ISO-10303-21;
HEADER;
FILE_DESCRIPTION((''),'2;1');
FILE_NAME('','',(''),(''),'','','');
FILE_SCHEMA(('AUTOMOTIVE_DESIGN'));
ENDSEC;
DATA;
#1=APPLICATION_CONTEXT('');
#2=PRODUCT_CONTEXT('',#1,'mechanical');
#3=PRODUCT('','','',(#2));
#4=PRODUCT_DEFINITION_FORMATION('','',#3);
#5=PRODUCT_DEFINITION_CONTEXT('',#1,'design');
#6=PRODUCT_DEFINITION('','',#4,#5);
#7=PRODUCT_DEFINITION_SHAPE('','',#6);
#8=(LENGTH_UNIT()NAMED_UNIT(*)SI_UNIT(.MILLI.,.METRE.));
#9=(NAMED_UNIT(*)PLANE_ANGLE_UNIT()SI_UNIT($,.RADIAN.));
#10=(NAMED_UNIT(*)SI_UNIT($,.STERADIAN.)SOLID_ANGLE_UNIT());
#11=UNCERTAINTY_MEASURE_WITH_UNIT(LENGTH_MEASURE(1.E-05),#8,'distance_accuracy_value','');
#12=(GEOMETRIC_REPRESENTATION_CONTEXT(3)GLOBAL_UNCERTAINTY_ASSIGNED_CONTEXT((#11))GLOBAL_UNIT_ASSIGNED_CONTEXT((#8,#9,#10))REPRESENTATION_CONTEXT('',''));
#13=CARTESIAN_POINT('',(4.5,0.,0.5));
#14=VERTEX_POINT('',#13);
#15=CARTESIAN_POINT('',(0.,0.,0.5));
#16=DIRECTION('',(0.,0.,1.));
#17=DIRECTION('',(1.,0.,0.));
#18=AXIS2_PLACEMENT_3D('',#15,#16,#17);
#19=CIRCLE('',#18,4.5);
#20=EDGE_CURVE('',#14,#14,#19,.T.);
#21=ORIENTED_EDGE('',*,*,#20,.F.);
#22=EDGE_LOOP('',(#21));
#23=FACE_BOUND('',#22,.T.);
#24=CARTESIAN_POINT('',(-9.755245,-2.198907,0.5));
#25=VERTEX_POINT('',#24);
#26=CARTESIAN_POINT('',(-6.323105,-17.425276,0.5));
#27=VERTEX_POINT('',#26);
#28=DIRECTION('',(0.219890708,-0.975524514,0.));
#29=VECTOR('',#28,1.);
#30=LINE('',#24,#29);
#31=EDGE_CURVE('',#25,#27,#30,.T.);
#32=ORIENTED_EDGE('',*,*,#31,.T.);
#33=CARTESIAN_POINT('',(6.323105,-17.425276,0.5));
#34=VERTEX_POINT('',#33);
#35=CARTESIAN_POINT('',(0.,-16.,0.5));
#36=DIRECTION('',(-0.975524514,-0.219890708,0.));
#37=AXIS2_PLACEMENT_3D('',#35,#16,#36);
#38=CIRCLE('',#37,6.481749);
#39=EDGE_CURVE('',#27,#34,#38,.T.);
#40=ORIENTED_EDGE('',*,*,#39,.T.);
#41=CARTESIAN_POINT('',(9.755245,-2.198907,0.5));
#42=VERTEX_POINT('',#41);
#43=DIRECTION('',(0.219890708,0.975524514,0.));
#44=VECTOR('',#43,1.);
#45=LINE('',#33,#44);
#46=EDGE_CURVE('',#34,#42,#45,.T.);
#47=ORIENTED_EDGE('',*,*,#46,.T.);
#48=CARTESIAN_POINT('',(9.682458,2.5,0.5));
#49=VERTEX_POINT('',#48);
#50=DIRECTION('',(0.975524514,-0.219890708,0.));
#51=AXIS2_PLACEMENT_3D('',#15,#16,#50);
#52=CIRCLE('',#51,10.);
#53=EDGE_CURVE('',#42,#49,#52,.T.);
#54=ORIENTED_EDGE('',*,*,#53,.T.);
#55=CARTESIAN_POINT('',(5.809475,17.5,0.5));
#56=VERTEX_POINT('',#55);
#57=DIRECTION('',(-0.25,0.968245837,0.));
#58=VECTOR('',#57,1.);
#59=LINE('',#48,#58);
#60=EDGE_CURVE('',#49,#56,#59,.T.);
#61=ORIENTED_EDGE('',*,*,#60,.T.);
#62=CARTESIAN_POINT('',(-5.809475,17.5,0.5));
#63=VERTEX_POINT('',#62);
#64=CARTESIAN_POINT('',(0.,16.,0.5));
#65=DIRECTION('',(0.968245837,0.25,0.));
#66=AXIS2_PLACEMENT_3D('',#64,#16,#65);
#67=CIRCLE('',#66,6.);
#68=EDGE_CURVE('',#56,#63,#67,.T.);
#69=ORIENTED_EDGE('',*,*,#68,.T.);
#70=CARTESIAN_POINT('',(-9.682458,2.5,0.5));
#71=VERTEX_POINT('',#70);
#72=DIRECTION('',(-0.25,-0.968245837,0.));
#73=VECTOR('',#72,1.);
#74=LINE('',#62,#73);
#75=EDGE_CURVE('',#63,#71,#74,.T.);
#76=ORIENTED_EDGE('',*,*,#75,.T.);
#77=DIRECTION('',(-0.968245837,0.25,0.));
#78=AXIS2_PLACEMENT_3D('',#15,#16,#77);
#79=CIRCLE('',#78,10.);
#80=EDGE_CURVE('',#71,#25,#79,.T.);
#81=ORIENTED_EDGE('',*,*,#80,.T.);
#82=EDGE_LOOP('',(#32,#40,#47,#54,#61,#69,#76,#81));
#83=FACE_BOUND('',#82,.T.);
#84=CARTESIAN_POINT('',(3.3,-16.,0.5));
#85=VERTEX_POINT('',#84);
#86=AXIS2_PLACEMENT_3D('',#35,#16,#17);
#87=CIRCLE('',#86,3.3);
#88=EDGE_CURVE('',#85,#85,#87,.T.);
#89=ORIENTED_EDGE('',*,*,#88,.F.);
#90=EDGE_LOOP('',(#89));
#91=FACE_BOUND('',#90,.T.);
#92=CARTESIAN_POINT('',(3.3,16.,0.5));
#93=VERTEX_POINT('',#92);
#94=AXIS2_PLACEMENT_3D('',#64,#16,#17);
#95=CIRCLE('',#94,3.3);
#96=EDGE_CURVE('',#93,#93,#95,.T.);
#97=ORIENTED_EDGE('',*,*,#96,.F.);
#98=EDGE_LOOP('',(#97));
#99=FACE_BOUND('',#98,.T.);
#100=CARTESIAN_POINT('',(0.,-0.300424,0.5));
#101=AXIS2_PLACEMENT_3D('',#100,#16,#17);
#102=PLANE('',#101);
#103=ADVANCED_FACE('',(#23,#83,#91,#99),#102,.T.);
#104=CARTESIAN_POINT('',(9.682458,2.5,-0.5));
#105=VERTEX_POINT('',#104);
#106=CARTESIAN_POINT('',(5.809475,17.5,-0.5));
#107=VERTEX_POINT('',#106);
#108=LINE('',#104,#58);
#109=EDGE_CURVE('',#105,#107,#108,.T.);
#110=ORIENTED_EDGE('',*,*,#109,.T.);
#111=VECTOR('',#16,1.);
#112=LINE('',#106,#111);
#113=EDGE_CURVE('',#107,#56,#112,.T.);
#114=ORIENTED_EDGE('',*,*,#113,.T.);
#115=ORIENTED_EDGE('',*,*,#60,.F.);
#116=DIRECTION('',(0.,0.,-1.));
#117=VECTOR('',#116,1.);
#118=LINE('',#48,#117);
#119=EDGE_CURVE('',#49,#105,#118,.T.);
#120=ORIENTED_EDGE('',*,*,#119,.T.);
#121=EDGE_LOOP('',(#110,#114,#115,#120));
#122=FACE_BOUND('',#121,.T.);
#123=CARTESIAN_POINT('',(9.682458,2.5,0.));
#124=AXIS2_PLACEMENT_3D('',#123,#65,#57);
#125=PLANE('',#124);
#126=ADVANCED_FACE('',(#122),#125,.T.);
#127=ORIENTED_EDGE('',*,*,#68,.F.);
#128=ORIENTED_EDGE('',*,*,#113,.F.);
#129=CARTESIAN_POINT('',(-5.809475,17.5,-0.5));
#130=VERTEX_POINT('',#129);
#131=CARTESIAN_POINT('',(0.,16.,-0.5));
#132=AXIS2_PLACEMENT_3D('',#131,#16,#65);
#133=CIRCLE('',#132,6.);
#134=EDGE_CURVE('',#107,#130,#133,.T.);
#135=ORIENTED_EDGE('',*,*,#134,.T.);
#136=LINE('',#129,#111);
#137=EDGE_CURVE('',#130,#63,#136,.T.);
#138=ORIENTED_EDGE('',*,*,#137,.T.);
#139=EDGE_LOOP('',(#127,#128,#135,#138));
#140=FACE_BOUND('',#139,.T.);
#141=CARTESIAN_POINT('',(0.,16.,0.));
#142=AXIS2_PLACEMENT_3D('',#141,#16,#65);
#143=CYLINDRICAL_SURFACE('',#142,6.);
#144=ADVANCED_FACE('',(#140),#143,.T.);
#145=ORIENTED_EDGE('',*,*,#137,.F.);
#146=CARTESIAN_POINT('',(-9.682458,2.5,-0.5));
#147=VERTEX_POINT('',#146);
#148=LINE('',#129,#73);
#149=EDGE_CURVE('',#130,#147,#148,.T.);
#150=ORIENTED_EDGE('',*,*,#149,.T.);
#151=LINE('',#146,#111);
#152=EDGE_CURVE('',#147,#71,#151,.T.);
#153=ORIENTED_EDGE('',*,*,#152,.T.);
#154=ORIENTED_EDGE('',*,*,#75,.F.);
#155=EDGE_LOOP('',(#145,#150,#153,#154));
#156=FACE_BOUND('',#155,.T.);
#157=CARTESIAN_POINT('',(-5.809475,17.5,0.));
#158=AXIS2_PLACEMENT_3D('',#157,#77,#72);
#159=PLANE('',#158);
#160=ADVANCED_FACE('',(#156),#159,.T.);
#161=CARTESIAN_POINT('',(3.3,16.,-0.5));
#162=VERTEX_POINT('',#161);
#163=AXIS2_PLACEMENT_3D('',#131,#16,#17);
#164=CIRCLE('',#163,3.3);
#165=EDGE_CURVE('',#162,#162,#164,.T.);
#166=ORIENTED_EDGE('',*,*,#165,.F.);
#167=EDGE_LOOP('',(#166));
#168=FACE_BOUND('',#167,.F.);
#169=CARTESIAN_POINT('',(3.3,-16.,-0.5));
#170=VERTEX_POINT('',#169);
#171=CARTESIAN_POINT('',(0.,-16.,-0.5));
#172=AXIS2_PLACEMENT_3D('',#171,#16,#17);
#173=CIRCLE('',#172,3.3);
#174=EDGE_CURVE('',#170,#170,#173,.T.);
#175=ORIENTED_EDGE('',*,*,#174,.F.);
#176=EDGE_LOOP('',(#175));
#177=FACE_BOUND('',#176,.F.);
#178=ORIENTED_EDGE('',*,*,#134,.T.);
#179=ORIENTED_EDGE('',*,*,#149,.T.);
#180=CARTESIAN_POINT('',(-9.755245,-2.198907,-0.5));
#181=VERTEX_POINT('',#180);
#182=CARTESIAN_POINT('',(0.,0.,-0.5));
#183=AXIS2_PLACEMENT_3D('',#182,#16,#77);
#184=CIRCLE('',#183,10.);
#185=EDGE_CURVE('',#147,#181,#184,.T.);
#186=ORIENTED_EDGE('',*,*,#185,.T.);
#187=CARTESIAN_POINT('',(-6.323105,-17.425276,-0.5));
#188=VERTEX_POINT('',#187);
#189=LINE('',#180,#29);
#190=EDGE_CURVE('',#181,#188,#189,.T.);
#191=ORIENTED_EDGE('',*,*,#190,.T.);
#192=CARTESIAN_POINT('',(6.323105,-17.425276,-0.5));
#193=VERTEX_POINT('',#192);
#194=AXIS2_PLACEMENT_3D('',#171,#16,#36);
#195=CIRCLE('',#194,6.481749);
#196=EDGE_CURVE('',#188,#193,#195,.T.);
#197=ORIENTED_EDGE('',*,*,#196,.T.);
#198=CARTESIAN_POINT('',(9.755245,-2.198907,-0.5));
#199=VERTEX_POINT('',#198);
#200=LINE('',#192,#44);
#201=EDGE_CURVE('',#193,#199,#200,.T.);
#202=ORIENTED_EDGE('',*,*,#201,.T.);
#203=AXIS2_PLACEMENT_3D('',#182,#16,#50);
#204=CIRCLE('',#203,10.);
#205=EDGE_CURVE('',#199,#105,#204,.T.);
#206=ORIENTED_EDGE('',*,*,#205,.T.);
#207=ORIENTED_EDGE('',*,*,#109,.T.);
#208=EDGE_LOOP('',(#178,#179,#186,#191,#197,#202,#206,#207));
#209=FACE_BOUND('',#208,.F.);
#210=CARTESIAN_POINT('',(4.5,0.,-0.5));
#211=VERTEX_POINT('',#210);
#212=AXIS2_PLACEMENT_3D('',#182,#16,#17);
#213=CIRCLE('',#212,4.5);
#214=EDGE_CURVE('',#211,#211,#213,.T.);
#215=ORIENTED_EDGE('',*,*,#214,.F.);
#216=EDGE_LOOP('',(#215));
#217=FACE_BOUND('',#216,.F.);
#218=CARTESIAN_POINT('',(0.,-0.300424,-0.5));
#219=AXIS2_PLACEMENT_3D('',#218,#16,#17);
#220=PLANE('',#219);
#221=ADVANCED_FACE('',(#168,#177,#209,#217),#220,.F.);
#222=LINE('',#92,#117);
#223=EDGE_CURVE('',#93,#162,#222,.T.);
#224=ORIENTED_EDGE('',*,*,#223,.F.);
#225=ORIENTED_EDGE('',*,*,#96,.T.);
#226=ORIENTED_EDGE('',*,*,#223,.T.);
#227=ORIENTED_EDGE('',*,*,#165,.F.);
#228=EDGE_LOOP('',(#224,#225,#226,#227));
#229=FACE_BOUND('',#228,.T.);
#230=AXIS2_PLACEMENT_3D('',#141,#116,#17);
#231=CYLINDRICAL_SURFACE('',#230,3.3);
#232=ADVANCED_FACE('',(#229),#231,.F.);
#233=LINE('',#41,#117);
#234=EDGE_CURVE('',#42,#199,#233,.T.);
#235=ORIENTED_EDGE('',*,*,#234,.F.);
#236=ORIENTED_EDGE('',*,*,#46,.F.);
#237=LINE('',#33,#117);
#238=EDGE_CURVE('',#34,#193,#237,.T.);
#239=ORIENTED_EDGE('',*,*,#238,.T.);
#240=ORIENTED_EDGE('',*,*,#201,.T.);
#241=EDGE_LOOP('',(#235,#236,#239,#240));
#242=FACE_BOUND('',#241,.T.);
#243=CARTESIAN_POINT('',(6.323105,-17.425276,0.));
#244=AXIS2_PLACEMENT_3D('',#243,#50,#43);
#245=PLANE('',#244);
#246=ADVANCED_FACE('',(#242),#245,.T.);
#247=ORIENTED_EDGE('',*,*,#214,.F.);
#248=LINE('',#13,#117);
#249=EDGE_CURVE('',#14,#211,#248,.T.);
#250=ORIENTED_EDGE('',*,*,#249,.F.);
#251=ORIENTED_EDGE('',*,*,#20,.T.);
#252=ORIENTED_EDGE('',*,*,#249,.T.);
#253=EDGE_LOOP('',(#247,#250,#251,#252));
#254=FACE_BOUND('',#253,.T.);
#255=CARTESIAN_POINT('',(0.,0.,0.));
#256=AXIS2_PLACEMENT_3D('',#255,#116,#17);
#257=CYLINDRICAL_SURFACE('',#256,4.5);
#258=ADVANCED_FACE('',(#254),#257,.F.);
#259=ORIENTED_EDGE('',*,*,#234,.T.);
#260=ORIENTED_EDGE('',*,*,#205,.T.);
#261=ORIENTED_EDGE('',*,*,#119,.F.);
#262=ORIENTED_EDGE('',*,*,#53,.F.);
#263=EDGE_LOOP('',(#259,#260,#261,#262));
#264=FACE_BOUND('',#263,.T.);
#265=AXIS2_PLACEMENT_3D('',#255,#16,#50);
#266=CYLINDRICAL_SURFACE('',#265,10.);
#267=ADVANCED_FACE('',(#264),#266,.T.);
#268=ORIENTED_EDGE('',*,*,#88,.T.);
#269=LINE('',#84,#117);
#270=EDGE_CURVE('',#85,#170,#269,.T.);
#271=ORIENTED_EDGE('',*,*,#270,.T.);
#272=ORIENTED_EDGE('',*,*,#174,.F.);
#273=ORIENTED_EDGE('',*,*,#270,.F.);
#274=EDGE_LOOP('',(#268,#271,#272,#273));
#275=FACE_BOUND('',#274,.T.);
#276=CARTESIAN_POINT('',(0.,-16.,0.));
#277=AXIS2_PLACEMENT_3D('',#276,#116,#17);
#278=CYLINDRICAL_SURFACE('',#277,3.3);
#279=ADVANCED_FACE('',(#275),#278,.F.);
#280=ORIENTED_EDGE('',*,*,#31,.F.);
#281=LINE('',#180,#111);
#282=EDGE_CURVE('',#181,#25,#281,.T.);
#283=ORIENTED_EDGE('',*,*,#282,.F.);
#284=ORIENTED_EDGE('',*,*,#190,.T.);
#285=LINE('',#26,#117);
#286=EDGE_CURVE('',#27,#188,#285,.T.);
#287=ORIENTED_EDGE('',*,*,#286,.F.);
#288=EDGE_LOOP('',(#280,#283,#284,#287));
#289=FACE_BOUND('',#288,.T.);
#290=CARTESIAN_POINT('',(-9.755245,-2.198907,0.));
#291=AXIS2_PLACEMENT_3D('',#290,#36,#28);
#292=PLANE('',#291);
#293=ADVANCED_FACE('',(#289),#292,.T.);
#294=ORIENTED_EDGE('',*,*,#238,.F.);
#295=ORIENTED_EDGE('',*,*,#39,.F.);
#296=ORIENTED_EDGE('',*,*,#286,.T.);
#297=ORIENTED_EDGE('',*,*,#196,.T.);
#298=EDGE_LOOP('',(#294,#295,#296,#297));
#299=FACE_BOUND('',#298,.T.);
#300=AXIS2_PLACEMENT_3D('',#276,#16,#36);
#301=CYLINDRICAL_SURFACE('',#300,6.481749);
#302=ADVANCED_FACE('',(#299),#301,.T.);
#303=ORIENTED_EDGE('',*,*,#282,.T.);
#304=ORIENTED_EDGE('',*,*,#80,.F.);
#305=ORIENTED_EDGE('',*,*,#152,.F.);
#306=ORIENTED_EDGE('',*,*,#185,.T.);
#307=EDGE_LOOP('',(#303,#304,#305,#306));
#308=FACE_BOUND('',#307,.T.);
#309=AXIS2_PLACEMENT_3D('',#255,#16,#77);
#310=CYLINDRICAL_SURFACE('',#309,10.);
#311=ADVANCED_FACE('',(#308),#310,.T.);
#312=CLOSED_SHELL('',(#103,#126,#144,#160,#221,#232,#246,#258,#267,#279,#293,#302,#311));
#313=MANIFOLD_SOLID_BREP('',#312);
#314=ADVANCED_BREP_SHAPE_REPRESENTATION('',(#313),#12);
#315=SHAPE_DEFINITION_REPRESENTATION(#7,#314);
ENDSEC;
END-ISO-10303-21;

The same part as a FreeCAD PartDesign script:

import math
import FreeCAD as App
import Part
import Sketcher
Q = App.Units.Quantity

doc = App.newDocument("Part")
body = doc.addObject("PartDesign::Body", "Body")

# Sketch on XY plane
sketch1 = body.newObject("Sketcher::SketchObject", "Sketch")
sketch1.AttachmentSupport = (doc.getObject("XY_Plane"), [""])
sketch1.MapMode = "FlatFace"
sketch1.addGeometry([
    Part.LineSegment(App.Vector(9.682458, 2.5, 0), App.Vector(5.809475, 17.5, 0)),  # 0
    Part.ArcOfCircle(Part.Circle(App.Vector(0, 16, 0), App.Vector(0, 0, 1), 6), math.radians(14.477512), math.radians(165.522488)),  # 1
    Part.LineSegment(App.Vector(-5.809475, 17.5, 0), App.Vector(-9.682458, 2.5, 0)),  # 2
    Part.ArcOfCircle(Part.Circle(App.Vector(0, 0, 0), App.Vector(0, 0, 1), 10), math.radians(165.522488), math.radians(192.702614)),  # 3
    Part.LineSegment(App.Vector(-9.755245, -2.198907, 0), App.Vector(-6.323105, -17.425276, 0)),  # 4
    Part.ArcOfCircle(Part.Circle(App.Vector(0, -16, 0), App.Vector(0, 0, 1), 6.481749), math.radians(-167.297386), math.radians(-12.702614)),  # 5
    Part.LineSegment(App.Vector(6.323105, -17.425276, 0), App.Vector(9.755245, -2.198907, 0)),  # 6
    Part.ArcOfCircle(Part.Circle(App.Vector(0, 0, 0), App.Vector(0, 0, 1), 10), math.radians(-12.702614), math.radians(14.477512)),  # 7
    Part.Circle(App.Vector(0, -16, 0), App.Vector(0, 0, 1), 3.3),  # 8
    Part.Circle(App.Vector(0, 0, 0), App.Vector(0, 0, 1), 4.5),  # 9
    Part.Circle(App.Vector(0, 16, 0), App.Vector(0, 0, 1), 3.3),  # 10
], False)
sketch1.addConstraint([
    Sketcher.Constraint("Tangent", 0, 2, 1, 1),
    Sketcher.Constraint("Tangent", 1, 2, 2, 1),
    Sketcher.Constraint("Tangent", 2, 2, 3, 1),
    Sketcher.Constraint("Tangent", 3, 2, 4, 1),
    Sketcher.Constraint("Tangent", 4, 2, 5, 1),
    Sketcher.Constraint("Tangent", 5, 2, 6, 1),
    Sketcher.Constraint("Tangent", 6, 2, 7, 1),
    Sketcher.Constraint("Tangent", 7, 2, 0, 1),
    Sketcher.Constraint("Coincident", 3, 3, -1, 1),
    Sketcher.Constraint("Coincident", 7, 3, -1, 1),
    Sketcher.Constraint("Coincident", 9, 3, -1, 1),
    Sketcher.Constraint("Coincident", 8, 3, 5, 3),
    Sketcher.Constraint("Coincident", 10, 3, 1, 3),
    Sketcher.Constraint("Equal", 3, 7),
    Sketcher.Constraint("Equal", 8, 10),
    Sketcher.Constraint("Symmetric", 1, 3, 5, 3, -1, 1),
    Sketcher.Constraint("PointOnObject", 1, 3, -2),
    Sketcher.Constraint("Diameter", 9, Q("9 mm")),
    Sketcher.Constraint("Radius", 1, Q("6 mm")),
    Sketcher.Constraint("Radius", 3, Q("10 mm")),
    Sketcher.Constraint("Diameter", 8, Q("6.6 mm")),
    Sketcher.Constraint("DistanceY", -1, 1, 1, 3, Q("16 mm")),
    Sketcher.Constraint("Radius", 5, Q("6.481749 mm")),
])
pad1 = body.newObject("PartDesign::Pad", "Pad")
pad1.Profile = sketch1
pad1.Length = 1
pad1.Midplane = True

doc.recompute()
